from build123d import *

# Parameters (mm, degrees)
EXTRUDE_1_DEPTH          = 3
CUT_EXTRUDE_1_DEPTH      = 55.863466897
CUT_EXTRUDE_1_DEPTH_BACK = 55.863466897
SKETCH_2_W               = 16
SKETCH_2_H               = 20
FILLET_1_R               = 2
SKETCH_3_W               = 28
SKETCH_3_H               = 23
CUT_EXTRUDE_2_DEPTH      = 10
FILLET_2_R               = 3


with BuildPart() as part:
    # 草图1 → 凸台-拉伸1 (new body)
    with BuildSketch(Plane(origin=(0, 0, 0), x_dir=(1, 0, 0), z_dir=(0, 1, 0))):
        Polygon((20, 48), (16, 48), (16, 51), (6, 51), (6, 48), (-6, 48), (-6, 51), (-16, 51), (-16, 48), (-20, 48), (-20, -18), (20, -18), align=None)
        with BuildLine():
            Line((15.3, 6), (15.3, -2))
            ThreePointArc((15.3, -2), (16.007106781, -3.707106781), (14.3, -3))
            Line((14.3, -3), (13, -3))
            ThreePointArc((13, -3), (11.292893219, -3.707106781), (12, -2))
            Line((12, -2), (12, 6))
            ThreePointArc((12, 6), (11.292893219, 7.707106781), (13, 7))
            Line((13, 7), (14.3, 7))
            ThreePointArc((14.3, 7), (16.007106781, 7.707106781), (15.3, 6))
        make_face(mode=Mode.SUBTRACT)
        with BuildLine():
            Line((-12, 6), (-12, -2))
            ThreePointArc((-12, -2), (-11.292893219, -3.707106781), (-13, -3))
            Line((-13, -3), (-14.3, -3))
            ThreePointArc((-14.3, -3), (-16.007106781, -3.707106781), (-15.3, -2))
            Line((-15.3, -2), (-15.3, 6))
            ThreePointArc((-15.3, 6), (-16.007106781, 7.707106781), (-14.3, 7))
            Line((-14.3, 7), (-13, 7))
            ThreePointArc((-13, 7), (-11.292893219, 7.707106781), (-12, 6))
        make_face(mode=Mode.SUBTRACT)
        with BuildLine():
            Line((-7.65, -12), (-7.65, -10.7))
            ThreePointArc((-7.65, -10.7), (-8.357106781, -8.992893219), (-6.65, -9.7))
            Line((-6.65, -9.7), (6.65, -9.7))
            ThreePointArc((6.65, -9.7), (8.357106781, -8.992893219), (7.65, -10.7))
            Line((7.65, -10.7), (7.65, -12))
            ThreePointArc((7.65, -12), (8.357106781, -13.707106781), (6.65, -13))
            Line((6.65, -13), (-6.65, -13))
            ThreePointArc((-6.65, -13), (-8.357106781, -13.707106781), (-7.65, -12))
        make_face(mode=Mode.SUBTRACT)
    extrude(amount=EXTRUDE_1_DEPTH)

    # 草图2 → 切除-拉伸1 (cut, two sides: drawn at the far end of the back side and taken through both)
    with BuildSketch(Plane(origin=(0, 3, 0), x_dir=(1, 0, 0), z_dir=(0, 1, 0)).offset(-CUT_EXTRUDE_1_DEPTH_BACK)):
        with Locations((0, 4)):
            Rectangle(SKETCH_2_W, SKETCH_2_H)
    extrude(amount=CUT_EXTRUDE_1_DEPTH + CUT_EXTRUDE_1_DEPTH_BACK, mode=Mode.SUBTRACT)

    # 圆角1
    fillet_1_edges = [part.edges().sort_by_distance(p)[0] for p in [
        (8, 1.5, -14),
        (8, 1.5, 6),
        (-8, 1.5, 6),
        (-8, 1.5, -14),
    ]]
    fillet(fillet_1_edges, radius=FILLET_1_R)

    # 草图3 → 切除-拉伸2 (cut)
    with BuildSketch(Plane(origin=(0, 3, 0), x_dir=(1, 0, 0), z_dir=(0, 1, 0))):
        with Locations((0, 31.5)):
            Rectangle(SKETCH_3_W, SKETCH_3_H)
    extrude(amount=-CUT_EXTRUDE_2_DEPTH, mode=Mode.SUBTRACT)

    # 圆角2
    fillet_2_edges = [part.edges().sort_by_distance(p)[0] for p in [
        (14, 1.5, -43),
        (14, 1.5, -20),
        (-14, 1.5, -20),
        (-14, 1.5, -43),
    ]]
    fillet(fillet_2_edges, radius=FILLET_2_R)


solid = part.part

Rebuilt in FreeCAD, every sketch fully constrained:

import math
import FreeCAD as App
import Part
import Sketcher

V = App.Vector
Q = App.Units.Quantity


def edges_at(feature, points):
    """Names of the edges that pass closest to the given points."""
    edges = feature.Shape.Edges
    near = lambda p: min(range(len(edges)), key=lambda i: edges[i].distToShape(Part.Vertex(*p))[0])
    return sorted({f"Edge{near(p) + 1}" for p in points})

doc = App.newDocument("Part")
body = doc.addObject("PartDesign::Body", "Body")

# Sketch on XZ plane
sketch1 = body.newObject("Sketcher::SketchObject", "Sketch")
sketch1.AttachmentSupport = (doc.getObject("XZ_Plane"), [""])
sketch1.MapMode = "FlatFace"
sketch1.addGeometry([
    Part.LineSegment(V(20, -48, 0), V(16, -48, 0)),  # 0
    Part.LineSegment(V(16, -48, 0), V(16, -51, 0)),  # 1
    Part.LineSegment(V(16, -51, 0), V(6, -51, 0)),  # 2
    Part.LineSegment(V(6, -51, 0), V(6, -48, 0)),  # 3
    Part.LineSegment(V(6, -48, 0), V(-6, -48, 0)),  # 4
    Part.LineSegment(V(-6, -48, 0), V(-6, -51, 0)),  # 5
    Part.LineSegment(V(-6, -51, 0), V(-16, -51, 0)),  # 6
    Part.LineSegment(V(-16, -51, 0), V(-16, -48, 0)),  # 7
    Part.LineSegment(V(-16, -48, 0), V(-20, -48, 0)),  # 8
    Part.LineSegment(V(-20, -48, 0), V(-20, 18, 0)),  # 9
    Part.LineSegment(V(-20, 18, 0), V(20, 18, 0)),  # 10
    Part.LineSegment(V(20, 18, 0), V(20, -48, 0)),  # 11
    Part.ArcOfCircle(Part.Circle(V(-7.7, 13, 0), V(0, 0, 1), 1), math.radians(0), math.radians(270)),  # 12
    Part.LineSegment(V(-7.7, 12, 0), V(-7.7, 10.7, 0)),  # 13
    Part.ArcOfCircle(Part.Circle(V(-7.7, 9.7, 0), V(0, 0, 1), 1), math.radians(90), math.radians(360)),  # 14
    Part.LineSegment(V(-6.7, 9.7, 0), V(6.7, 9.7, 0)),  # 15
    Part.ArcOfCircle(Part.Circle(V(7.7, 9.7, 0), V(0, 0, 1), 1), math.radians(180), math.radians(450)),  # 16
    Part.LineSegment(V(7.7, 10.7, 0), V(7.7, 12, 0)),  # 17
    Part.ArcOfCircle(Part.Circle(V(7.7, 13, 0), V(0, 0, 1), 1), math.radians(-90), math.radians(180)),  # 18
    Part.LineSegment(V(6.7, 13, 0), V(-6.7, 13, 0)),  # 19
    Part.ArcOfCircle(Part.Circle(V(-12, -7, 0), V(0, 0, 1), 1), math.radians(180), math.radians(450)),  # 20
    Part.LineSegment(V(-12, -6, 0), V(-12, 2, 0)),  # 21
    Part.ArcOfCircle(Part.Circle(V(-12, 3, 0), V(0, 0, 1), 1), math.radians(-90), math.radians(180)),  # 22
    Part.LineSegment(V(-13, 3, 0), V(-14.3, 3, 0)),  # 23
    Part.ArcOfCircle(Part.Circle(V(-15.3, 3, 0), V(0, 0, 1), 1), math.radians(0), math.radians(270)),  # 24
    Part.LineSegment(V(-15.3, 2, 0), V(-15.3, -6, 0)),  # 25
    Part.ArcOfCircle(Part.Circle(V(-15.3, -7, 0), V(0, 0, 1), 1), math.radians(90), math.radians(360)),  # 26
    Part.LineSegment(V(-14.3, -7, 0), V(-13, -7, 0)),  # 27
    Part.ArcOfCircle(Part.Circle(V(15.3, -7, 0), V(0, 0, 1), 1), math.radians(180), math.radians(450)),  # 28
    Part.LineSegment(V(15.3, -6, 0), V(15.3, 2, 0)),  # 29
    Part.ArcOfCircle(Part.Circle(V(15.3, 3, 0), V(0, 0, 1), 1), math.radians(-90), math.radians(180)),  # 30
    Part.LineSegment(V(14.3, 3, 0), V(13, 3, 0)),  # 31
    Part.ArcOfCircle(Part.Circle(V(12, 3, 0), V(0, 0, 1), 1), math.radians(0), math.radians(270)),  # 32
    Part.LineSegment(V(12, 2, 0), V(12, -6, 0)),  # 33
    Part.ArcOfCircle(Part.Circle(V(12, -7, 0), V(0, 0, 1), 1), math.radians(90), math.radians(360)),  # 34
    Part.LineSegment(V(13, -7, 0), V(14.3, -7, 0)),  # 35
], False)
sketch1.addConstraint([
    Sketcher.Constraint("Coincident", 0, 2, 1, 1),
    Sketcher.Constraint("Coincident", 1, 2, 2, 1),
    Sketcher.Constraint("Coincident", 2, 2, 3, 1),
    Sketcher.Constraint("Coincident", 3, 2, 4, 1),
    Sketcher.Constraint("Coincident", 4, 2, 5, 1),
    Sketcher.Constraint("Coincident", 5, 2, 6, 1),
    Sketcher.Constraint("Coincident", 6, 2, 7, 1),
    Sketcher.Constraint("Coincident", 7, 2, 8, 1),
    Sketcher.Constraint("Coincident", 8, 2, 9, 1),
    Sketcher.Constraint("Coincident", 9, 2, 10, 1),
    Sketcher.Constraint("Coincident", 10, 2, 11, 1),
    Sketcher.Constraint("Coincident", 11, 2, 0, 1),
    Sketcher.Constraint("Coincident", 12, 2, 13, 1),
    Sketcher.Constraint("Coincident", 13, 2, 14, 1),
    Sketcher.Constraint("Coincident", 14, 2, 15, 1),
    Sketcher.Constraint("Coincident", 15, 2, 16, 1),
    Sketcher.Constraint("Coincident", 16, 2, 17, 1),
    Sketcher.Constraint("Coincident", 17, 2, 18, 1),
    Sketcher.Constraint("Coincident", 18, 2, 19, 1),
    Sketcher.Constraint("Coincident", 19, 2, 12, 1),
    Sketcher.Constraint("Coincident", 20, 2, 21, 1),
    Sketcher.Constraint("Coincident", 21, 2, 22, 1),
    Sketcher.Constraint("Coincident", 22, 2, 23, 1),
    Sketcher.Constraint("Coincident", 23, 2, 24, 1),
    Sketcher.Constraint("Coincident", 24, 2, 25, 1),
    Sketcher.Constraint("Coincident", 25, 2, 26, 1),
    Sketcher.Constraint("Coincident", 26, 2, 27, 1),
    Sketcher.Constraint("Coincident", 27, 2, 20, 1),
    Sketcher.Constraint("Coincident", 28, 2, 29, 1),
    Sketcher.Constraint("Coincident", 29, 2, 30, 1),
    Sketcher.Constraint("Coincident", 30, 2, 31, 1),
    Sketcher.Constraint("Coincident", 31, 2, 32, 1),
    Sketcher.Constraint("Coincident", 32, 2, 33, 1),
    Sketcher.Constraint("Coincident", 33, 2, 34, 1),
    Sketcher.Constraint("Coincident", 34, 2, 35, 1),
    Sketcher.Constraint("Coincident", 35, 2, 28, 1),
    Sketcher.Constraint("Horizontal", 0),
    Sketcher.Constraint("Vertical", 1),
    Sketcher.Constraint("Horizontal", 2),
    Sketcher.Constraint("Vertical", 3),
    Sketcher.Constraint("Horizontal", 4),
    Sketcher.Constraint("Vertical", 5),
    Sketcher.Constraint("Horizontal", 6),
    Sketcher.Constraint("Vertical", 7),
    Sketcher.Constraint("Horizontal", 8),
    Sketcher.Constraint("Vertical", 9),
    Sketcher.Constraint("Horizontal", 10),
    Sketcher.Constraint("Vertical", 11),
    Sketcher.Constraint("Vertical", 13),
    Sketcher.Constraint("Horizontal", 15),
    Sketcher.Constraint("Vertical", 17),
    Sketcher.Constraint("Horizontal", 19),
    Sketcher.Constraint("Vertical", 21),
    Sketcher.Constraint("Horizontal", 23),
    Sketcher.Constraint("Vertical", 25),
    Sketcher.Constraint("Horizontal", 27),
    Sketcher.Constraint("Vertical", 29),
    Sketcher.Constraint("Horizontal", 31),
    Sketcher.Constraint("Vertical", 33),
    Sketcher.Constraint("Horizontal", 35),
    Sketcher.Constraint("Equal", 12, 14),
    Sketcher.Constraint("Equal", 14, 16),
    Sketcher.Constraint("Equal", 16, 18),
    Sketcher.Constraint("Equal", 18, 20),
    Sketcher.Constraint("Equal", 20, 22),
    Sketcher.Constraint("Equal", 22, 24),
    Sketcher.Constraint("Equal", 24, 26),
    Sketcher.Constraint("Equal", 26, 28),
    Sketcher.Constraint("Equal", 28, 30),
    Sketcher.Constraint("Equal", 30, 32),
    Sketcher.Constraint("Equal", 32, 34),
    Sketcher.Constraint("Symmetric", 14, 3, 16, 3, -2),
    Sketcher.Constraint("Symmetric", 12, 3, 18, 3, -2),
    Sketcher.Constraint("Symmetric", 26, 3, 28, 3, -2),
    Sketcher.Constraint("Symmetric", 24, 3, 30, 3, -2),
    Sketcher.Constraint("Symmetric", 22, 3, 32, 3, -2),
    Sketcher.Constraint("Symmetric", 20, 3, 34, 3, -2),
    Sketcher.Constraint("Symmetric", 2, 2, 5, 2, -2),
    Sketcher.Constraint("Symmetric", 0, 2, 7, 2, -2),
    Sketcher.Constraint("Horizontal", 22, 3, 24, 3),
    Sketcher.Constraint("Horizontal", 20, 3, 26, 3),
    Sketcher.Constraint("Horizontal", 0, 2, 3, 2),
    Sketcher.Constraint("Horizontal", 16, 3, 14, 2),
    Sketcher.Constraint("Horizontal", 12, 3, 18, 2),
    Sketcher.Constraint("Horizontal", 32, 3, 22, 2),
    Sketcher.Constraint("Horizontal", 34, 3, 26, 2),
    Sketcher.Constraint("Horizontal", 23, 2, 30, 2),
    Sketcher.Constraint("Horizontal", 27, 2, 34, 2),
    Sketcher.Constraint("Vertical", 12, 3, 14, 3),
    Sketcher.Constraint("Vertical", 20, 3, 22, 3),
    Sketcher.Constraint("Vertical", 24, 3, 26, 3),
    Sketcher.Constraint("Vertical", 14, 3, 12, 2),
    Sketcher.Constraint("Vertical", 18, 3, 16, 2),
    Sketcher.Constraint("Vertical", 22, 3, 20, 2),
    Sketcher.Constraint("Vertical", 26, 3, 24, 2),
    Sketcher.Constraint("Vertical", 30, 3, 28, 2),
    Sketcher.Constraint("Vertical", 34, 3, 32, 2),
    Sketcher.Constraint("Equal", 0, 8),
    Sketcher.Constraint("Equal", 35, 13),
    Sketcher.Constraint("Radius", 12, Q("1 mm")),
    Sketcher.Constraint("DistanceX", 0, 2, 0, 1, Q("4 mm")),
    Sketcher.Constraint("DistanceX", 2, 2, 2, 1, Q("10 mm")),
    Sketcher.Constraint("DistanceX", 4, 2, 4, 1, Q("12 mm")),
    Sketcher.Constraint("DistanceY", 1, 2, 1, 1, Q("3 mm")),
    Sketcher.Constraint("DistanceY", 9, 1, 9, 2, Q("66 mm")),
    Sketcher.Constraint("DistanceY", 21, 1, 21, 2, Q("8 mm")),
    Sketcher.Constraint("DistanceX", 15, 1, 15, 2, Q("13.3 mm")),
    Sketcher.Constraint("DistanceX", 23, 2, 23, 1, Q("1.3 mm")),
    Sketcher.Constraint("DistanceY", -1, 1, 12, 3, Q("13 mm")),
    Sketcher.Constraint("DistanceX", 20, 3, -1, 1, Q("12 mm")),
    Sketcher.Constraint("DistanceY", 20, 3, -1, 1, Q("7 mm")),
    Sketcher.Constraint("DistanceY", 0, 2, -1, 1, Q("48 mm")),
])
pad1 = body.newObject("PartDesign::Pad", "Pad")
pad1.Profile = sketch1
pad1.Length = 3
pad1.Reversed = True

# Sketch on XZ plane
sketch2 = body.newObject("Sketcher::SketchObject", "Sketch001")
sketch2.AttachmentSupport = (doc.getObject("XZ_Plane"), [""])
sketch2.MapMode = "FlatFace"
sketch2.AttachmentOffset = App.Placement(V(0, 0, -3), App.Rotation())
sketch2.addGeometry([
    Part.LineSegment(V(-8, -14, 0), V(-8, 6, 0)),
    Part.LineSegment(V(-8, 6, 0), V(8, 6, 0)),
    Part.LineSegment(V(8, 6, 0), V(8, -14, 0)),
    Part.LineSegment(V(8, -14, 0), V(-8, -14, 0)),
], False)
sketch2.addConstraint([
    Sketcher.Constraint("Coincident", 0, 2, 1, 1),
    Sketcher.Constraint("Coincident", 1, 2, 2, 1),
    Sketcher.Constraint("Coincident", 2, 2, 3, 1),
    Sketcher.Constraint("Coincident", 3, 2, 0, 1),
    Sketcher.Constraint("Vertical", 0),
    Sketcher.Constraint("Horizontal", 1),
    Sketcher.Constraint("Vertical", 2),
    Sketcher.Constraint("Horizontal", 3),
    Sketcher.Constraint("DistanceX", 1, 1, 1, 2, Q("16 mm")),
    Sketcher.Constraint("DistanceY", 0, 1, 0, 2, Q("20 mm")),
    Sketcher.Constraint("DistanceX", 0, 2, -1, 1, Q("8 mm")),
    Sketcher.Constraint("DistanceY", -1, 1, 0, 2, Q("6 mm")),
])
pocket1 = body.newObject("PartDesign::Pocket", "Pocket")
pocket1.Profile = sketch2
pocket1.Type = "ThroughAll"
pocket1.Midplane = True
doc.recompute()

fillet = body.newObject("PartDesign::Fillet", "Fillet")
fillet.Base = (pocket1, edges_at(pocket1, [
    (8, 1.5, -14),
    (8, 1.5, 6),
    (-8, 1.5, 6),
    (-8, 1.5, -14),
]))
fillet.Radius = 2

# Sketch on XZ plane
sketch3 = body.newObject("Sketcher::SketchObject", "Sketch002")
sketch3.AttachmentSupport = (doc.getObject("XZ_Plane"), [""])
sketch3.MapMode = "FlatFace"
sketch3.AttachmentOffset = App.Placement(V(0, 0, -3), App.Rotation())
sketch3.addGeometry([
    Part.LineSegment(V(-14, -43, 0), V(-14, -20, 0)),
    Part.LineSegment(V(-14, -20, 0), V(14, -20, 0)),
    Part.LineSegment(V(14, -20, 0), V(14, -43, 0)),
    Part.LineSegment(V(14, -43, 0), V(-14, -43, 0)),
], False)
sketch3.addConstraint([
    Sketcher.Constraint("Coincident", 0, 2, 1, 1),
    Sketcher.Constraint("Coincident", 1, 2, 2, 1),
    Sketcher.Constraint("Coincident", 2, 2, 3, 1),
    Sketcher.Constraint("Coincident", 3, 2, 0, 1),
    Sketcher.Constraint("Vertical", 0),
    Sketcher.Constraint("Horizontal", 1),
    Sketcher.Constraint("Vertical", 2),
    Sketcher.Constraint("Horizontal", 3),
    Sketcher.Constraint("DistanceX", 1, 1, 1, 2, Q("28 mm")),
    Sketcher.Constraint("DistanceY", 0, 1, 0, 2, Q("23 mm")),
    Sketcher.Constraint("DistanceX", 0, 2, -1, 1, Q("14 mm")),
    Sketcher.Constraint("DistanceY", 0, 2, -1, 1, Q("20 mm")),
])
pocket2 = body.newObject("PartDesign::Pocket", "Pocket001")
pocket2.Profile = sketch3
pocket2.Length = 10
pocket2.Reversed = True
doc.recompute()

fillet2 = body.newObject("PartDesign::Fillet", "Fillet001")
fillet2.Base = (pocket2, edges_at(pocket2, [
    (14, 1.5, -43),
    (14, 1.5, -20),
    (-14, 1.5, -20),
    (-14, 1.5, -43),
]))
fillet2.Radius = 3

doc.recompute()
